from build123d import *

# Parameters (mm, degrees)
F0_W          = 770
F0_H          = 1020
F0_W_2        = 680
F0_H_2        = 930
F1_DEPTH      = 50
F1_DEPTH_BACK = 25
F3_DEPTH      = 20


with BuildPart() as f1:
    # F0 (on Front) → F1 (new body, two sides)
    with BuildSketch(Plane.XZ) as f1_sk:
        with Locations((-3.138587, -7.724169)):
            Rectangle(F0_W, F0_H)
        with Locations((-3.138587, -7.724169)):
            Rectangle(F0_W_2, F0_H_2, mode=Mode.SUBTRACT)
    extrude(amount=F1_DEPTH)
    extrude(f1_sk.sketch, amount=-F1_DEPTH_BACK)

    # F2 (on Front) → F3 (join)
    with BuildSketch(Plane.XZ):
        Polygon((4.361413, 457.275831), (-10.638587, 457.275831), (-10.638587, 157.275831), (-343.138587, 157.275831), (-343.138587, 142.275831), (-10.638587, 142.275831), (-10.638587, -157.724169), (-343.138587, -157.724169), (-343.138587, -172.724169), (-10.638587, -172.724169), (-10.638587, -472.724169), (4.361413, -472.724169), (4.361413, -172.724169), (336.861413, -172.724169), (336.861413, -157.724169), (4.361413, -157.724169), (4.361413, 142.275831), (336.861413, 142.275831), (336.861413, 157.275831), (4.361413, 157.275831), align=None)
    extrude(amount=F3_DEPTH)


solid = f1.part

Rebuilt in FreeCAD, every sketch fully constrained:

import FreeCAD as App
import Part
import Sketcher

V = App.Vector
Q = App.Units.Quantity


def add_polygon(sketch, points):
    """Adds a closed chain of lines whose ends are joined by coincident constraints."""
    first, n = sketch.GeometryCount, len(points)
    for a, b in zip(points, points[1:] + points[:1]):
        sketch.addGeometry(Part.LineSegment(App.Vector(*a, 0), App.Vector(*b, 0)), False)
    for i in range(n):
        sketch.addConstraint(Sketcher.Constraint("Coincident", first + i, 2, first + (i + 1) % n, 1))

doc = App.newDocument("Part")
body = doc.addObject("PartDesign::Body", "Body")

# Sketch on XZ plane
sketch1 = doc.addObject("Sketcher::SketchObject", "Sketch")
body.addObject(sketch1)
sketch1.AttachmentSupport = (doc.XZ_Plane, [""])
sketch1.MapMode = "FlatFace"
add_polygon(sketch1, [(-388, 502), (-388, -518), (382, -518), (382, 502)])  # lines 0-3
add_polygon(sketch1, [(337, -473), (-343, -473), (-343, 457), (337, 457)])  # lines 4-7
sketch1.addConstraint([
    Sketcher.Constraint("Vertical", 0),
    Sketcher.Constraint("Horizontal", 1),
    Sketcher.Constraint("Vertical", 2),
    Sketcher.Constraint("Horizontal", 3),
    Sketcher.Constraint("Horizontal", 4),
    Sketcher.Constraint("Vertical", 5),
    Sketcher.Constraint("Horizontal", 6),
    Sketcher.Constraint("Vertical", 7),
    Sketcher.Constraint("DistanceX", 1, 1, 1, 2, Q("770 mm")),
    Sketcher.Constraint("DistanceX", 4, 2, 4, 1, Q("680 mm")),
    Sketcher.Constraint("DistanceY", 0, 2, 0, 1, Q("1020 mm")),
    Sketcher.Constraint("DistanceY", 5, 1, 5, 2, Q("930 mm")),
    Sketcher.Constraint("DistanceX", 0, 2, 4, 2, Q("45 mm")),
    Sketcher.Constraint("DistanceY", 0, 2, 4, 2, Q("45 mm")),
    Sketcher.Constraint("DistanceY", 0, 2, -1, 1, Q("517.724169 mm")),
    Sketcher.Constraint("DistanceX", 0, 2, -1, 1, Q("388.138587 mm")),
])
pad1 = doc.addObject("PartDesign::Pad", "Pad")
body.addObject(pad1)
pad1.Profile = sketch1
pad1.Type = "TwoLengths"
pad1.Length = 50
pad1.Length2 = 25

# Sketch on XZ plane
sketch2 = doc.addObject("Sketcher::SketchObject", "Sketch001")
body.addObject(sketch2)
sketch2.AttachmentSupport = (doc.XZ_Plane, [""])
sketch2.MapMode = "FlatFace"
add_polygon(sketch2, [(4, 457), (-11, 457), (-11, 157), (-343, 157), (-343, 142), (-11, 142), (-11, -158), (-343, -158), (-343, -173), (-11, -173), (-11, -473), (4, -473), (4, -173), (337, -173), (337, -158), (4, -158), (4, 142), (337, 142), (337, 157), (4, 157)])  # lines 0-19
sketch2.addConstraint([
    Sketcher.Constraint("Horizontal", 0),
    Sketcher.Constraint("Vertical", 1),
    Sketcher.Constraint("Horizontal", 2),
    Sketcher.Constraint("Vertical", 3),
    Sketcher.Constraint("Horizontal", 4),
    Sketcher.Constraint("Vertical", 5),
    Sketcher.Constraint("Horizontal", 6),
    Sketcher.Constraint("Vertical", 7),
    Sketcher.Constraint("Horizontal", 8),
    Sketcher.Constraint("Vertical", 9),
    Sketcher.Constraint("Horizontal", 10),
    Sketcher.Constraint("Vertical", 11),
    Sketcher.Constraint("Horizontal", 12),
    Sketcher.Constraint("Vertical", 13),
    Sketcher.Constraint("Horizontal", 14),
    Sketcher.Constraint("Vertical", 15),
    Sketcher.Constraint("Horizontal", 16),
    Sketcher.Constraint("Vertical", 17),
    Sketcher.Constraint("Horizontal", 18),
    Sketcher.Constraint("Vertical", 19),
    Sketcher.Constraint("Horizontal", 8, 2, 11, 2),
    Sketcher.Constraint("Horizontal", 6, 2, 13, 2),
    Sketcher.Constraint("Horizontal", 4, 2, 15, 2),
    Sketcher.Constraint("Horizontal", 2, 2, 17, 2),
    Sketcher.Constraint("Vertical", 1, 2, 4, 2),
    Sketcher.Constraint("Vertical", 3, 2, 6, 2),
    Sketcher.Constraint("Vertical", 5, 2, 8, 2),
    Sketcher.Constraint("Vertical", 11, 2, 14, 2),
    Sketcher.Constraint("Vertical", 13, 2, 16, 2),
    Sketcher.Constraint("Vertical", 15, 2, 18, 2),
    Sketcher.Constraint("Equal", 8, 12),
    Sketcher.Constraint("Equal", 10, 3),
    Sketcher.Constraint("Equal", 1, 5),
    Sketcher.Constraint("Equal", 3, 7),
    Sketcher.Constraint("Equal", 5, 9),
    Sketcher.Constraint("DistanceX", 0, 2, 0, 1, Q("15 mm")),
    Sketcher.Constraint("DistanceY", 1, 2, 1, 1, Q("300 mm")),
    Sketcher.Constraint("DistanceX", 2, 2, 2, 1, Q("332.5 mm")),
    Sketcher.Constraint("DistanceY", -1, 1, 0, 2, Q("457.275831 mm")),
    Sketcher.Constraint("DistanceX", 0, 2, -1, 1, Q("10.638587 mm")),
])
pad2 = doc.addObject("PartDesign::Pad", "Pad001")
body.addObject(pad2)
pad2.Profile = sketch2
pad2.Length = 20

doc.recompute()
